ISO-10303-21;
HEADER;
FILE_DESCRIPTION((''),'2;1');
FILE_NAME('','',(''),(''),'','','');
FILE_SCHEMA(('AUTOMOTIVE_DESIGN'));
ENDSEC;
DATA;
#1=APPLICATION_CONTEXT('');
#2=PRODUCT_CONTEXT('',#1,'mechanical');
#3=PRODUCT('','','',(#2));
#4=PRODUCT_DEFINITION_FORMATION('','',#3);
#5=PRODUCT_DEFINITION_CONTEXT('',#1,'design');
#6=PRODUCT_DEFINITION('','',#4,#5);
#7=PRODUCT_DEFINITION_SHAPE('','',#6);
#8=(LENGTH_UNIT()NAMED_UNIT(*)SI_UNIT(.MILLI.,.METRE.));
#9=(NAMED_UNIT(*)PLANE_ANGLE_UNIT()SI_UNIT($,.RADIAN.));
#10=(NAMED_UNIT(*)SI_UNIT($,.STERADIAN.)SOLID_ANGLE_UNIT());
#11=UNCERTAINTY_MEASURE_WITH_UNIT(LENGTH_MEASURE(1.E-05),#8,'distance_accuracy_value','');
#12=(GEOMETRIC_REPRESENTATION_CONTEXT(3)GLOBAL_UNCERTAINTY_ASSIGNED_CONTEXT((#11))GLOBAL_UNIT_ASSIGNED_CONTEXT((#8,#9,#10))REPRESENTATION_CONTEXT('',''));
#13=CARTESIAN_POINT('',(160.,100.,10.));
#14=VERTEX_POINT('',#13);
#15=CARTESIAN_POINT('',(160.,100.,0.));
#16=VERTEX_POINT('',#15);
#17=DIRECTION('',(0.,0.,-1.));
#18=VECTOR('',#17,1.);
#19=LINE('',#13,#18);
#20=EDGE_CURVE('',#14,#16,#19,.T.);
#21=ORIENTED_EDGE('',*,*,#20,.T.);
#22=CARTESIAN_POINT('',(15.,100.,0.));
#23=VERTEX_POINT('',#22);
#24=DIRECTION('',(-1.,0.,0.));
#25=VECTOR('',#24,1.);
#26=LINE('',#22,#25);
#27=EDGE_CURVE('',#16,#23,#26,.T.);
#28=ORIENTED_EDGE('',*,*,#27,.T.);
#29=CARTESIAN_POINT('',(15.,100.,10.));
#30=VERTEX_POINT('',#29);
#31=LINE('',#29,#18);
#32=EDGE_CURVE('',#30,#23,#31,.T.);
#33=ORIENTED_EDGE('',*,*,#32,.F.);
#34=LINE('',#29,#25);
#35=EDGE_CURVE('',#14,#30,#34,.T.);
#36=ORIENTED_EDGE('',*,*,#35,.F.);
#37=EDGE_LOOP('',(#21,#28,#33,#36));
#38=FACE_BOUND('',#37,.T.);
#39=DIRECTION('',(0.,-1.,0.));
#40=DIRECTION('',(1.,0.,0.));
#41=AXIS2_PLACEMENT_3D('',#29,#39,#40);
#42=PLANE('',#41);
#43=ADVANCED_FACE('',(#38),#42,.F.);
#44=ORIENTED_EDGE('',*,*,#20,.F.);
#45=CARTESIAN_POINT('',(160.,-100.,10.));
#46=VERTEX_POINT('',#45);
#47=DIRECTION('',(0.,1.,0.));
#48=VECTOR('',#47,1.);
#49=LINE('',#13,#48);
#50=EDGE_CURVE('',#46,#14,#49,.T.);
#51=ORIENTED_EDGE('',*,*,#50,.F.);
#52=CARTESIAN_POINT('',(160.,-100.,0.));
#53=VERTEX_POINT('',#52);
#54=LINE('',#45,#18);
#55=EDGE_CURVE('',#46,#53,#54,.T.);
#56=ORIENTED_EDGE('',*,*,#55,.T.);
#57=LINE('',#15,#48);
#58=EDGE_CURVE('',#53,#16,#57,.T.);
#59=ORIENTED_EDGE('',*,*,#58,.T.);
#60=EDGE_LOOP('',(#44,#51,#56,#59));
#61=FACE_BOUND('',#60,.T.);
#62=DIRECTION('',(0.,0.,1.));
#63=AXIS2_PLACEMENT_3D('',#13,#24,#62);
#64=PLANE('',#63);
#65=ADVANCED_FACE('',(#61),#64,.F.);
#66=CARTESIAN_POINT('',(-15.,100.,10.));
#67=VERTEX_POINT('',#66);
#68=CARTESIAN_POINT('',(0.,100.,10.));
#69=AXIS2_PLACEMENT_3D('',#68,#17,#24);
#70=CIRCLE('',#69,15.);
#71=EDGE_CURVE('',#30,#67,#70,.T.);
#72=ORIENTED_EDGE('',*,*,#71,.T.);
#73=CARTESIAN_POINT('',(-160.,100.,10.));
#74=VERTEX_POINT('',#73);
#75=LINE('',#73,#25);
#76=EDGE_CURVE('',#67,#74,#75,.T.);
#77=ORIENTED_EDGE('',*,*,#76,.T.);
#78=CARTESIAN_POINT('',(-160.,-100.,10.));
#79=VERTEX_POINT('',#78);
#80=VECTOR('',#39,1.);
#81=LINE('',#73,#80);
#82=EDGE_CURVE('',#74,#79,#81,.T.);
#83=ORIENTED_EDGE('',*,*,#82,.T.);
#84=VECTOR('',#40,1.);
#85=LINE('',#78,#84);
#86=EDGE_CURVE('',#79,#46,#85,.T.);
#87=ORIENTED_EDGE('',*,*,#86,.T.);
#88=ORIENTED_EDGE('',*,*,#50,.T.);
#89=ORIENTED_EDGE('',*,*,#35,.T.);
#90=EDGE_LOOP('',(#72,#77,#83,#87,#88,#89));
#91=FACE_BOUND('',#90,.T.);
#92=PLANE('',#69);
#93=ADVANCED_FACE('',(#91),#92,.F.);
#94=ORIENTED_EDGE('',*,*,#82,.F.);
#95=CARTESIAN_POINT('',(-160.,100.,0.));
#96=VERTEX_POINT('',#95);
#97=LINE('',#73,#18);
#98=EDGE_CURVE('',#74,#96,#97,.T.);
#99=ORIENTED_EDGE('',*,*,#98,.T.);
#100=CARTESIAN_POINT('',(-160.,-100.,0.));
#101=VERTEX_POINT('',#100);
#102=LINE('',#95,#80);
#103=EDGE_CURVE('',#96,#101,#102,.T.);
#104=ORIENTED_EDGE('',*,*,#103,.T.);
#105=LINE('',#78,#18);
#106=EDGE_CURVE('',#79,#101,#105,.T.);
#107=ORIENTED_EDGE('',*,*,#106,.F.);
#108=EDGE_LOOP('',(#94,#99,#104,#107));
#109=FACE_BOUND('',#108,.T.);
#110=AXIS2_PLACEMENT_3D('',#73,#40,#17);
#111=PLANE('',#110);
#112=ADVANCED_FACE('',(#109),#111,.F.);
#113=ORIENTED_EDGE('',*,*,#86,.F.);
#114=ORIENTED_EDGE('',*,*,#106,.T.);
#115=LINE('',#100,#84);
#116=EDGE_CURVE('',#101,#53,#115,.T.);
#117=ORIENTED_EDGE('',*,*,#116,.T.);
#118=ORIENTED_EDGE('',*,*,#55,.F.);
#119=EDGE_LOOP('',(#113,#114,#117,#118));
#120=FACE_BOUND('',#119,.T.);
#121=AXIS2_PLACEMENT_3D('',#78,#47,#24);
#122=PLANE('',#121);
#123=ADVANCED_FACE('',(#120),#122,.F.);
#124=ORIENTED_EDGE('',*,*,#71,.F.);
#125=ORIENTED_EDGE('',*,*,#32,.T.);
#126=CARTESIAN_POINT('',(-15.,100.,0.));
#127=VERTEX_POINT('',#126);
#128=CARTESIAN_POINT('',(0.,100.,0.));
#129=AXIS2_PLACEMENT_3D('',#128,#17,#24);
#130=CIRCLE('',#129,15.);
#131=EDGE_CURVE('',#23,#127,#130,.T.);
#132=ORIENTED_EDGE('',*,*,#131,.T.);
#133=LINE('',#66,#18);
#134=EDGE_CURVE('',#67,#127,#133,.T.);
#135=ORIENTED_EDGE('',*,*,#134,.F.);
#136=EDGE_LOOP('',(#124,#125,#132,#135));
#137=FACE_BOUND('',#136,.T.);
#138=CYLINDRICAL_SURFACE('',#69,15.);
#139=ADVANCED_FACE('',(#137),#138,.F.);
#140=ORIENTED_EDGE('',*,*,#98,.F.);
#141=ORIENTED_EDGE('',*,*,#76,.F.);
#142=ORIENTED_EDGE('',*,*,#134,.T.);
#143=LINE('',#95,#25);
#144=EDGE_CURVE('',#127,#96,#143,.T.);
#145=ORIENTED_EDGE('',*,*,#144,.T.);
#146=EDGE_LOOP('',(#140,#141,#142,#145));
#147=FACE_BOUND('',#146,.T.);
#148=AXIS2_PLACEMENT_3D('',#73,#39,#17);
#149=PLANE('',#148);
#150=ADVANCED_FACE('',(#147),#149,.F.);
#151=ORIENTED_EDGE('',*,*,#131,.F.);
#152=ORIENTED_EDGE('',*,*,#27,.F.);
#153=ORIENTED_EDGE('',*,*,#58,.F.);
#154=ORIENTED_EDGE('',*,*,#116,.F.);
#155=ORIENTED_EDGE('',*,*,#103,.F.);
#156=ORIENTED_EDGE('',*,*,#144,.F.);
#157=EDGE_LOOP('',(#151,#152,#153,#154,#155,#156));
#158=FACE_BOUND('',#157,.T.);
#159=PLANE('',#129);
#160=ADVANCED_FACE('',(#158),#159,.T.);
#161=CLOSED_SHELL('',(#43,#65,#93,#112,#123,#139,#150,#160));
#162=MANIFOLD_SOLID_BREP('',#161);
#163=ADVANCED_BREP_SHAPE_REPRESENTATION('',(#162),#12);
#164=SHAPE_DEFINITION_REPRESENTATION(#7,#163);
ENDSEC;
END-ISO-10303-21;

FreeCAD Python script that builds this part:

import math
import FreeCAD as App
import Part
import Sketcher
Q = App.Units.Quantity

doc = App.newDocument("Part")
body = doc.addObject("PartDesign::Body", "Body")

sketch1 = body.newObject("Sketcher::SketchObject", "Sketch")
sketch1.AttachmentSupport = (doc.getObject("XY_Plane"), [""])
sketch1.MapMode = "FlatFace"
sketch1.addGeometry([
    Part.LineSegment(App.Vector(-15, 100, 0), App.Vector(-160, 100, 0)),
    Part.LineSegment(App.Vector(-160, 100, 0), App.Vector(-160, -100, 0)),
    Part.LineSegment(App.Vector(-160, -100, 0), App.Vector(160, -100, 0)),
    Part.LineSegment(App.Vector(160, -100, 0), App.Vector(160, 100, 0)),
    Part.LineSegment(App.Vector(160, 100, 0), App.Vector(15, 100, 0)),
    Part.ArcOfCircle(Part.Circle(App.Vector(0, 100, 0), App.Vector(0, 0, 1), 15), math.radians(180), math.radians(360)),
], False)
sketch1.addConstraint([
    Sketcher.Constraint("Coincident", 0, 2, 1, 1),
    Sketcher.Constraint("Coincident", 1, 2, 2, 1),
    Sketcher.Constraint("Coincident", 2, 2, 3, 1),
    Sketcher.Constraint("Coincident", 3, 2, 4, 1),
    Sketcher.Constraint("Coincident", 4, 2, 5, 2),
    Sketcher.Constraint("Coincident", 5, 1, 0, 1),
    Sketcher.Constraint("Horizontal", 0),
    Sketcher.Constraint("Vertical", 1),
    Sketcher.Constraint("Horizontal", 2),
    Sketcher.Constraint("Vertical", 3),
    Sketcher.Constraint("Horizontal", 4),
    Sketcher.Constraint("Symmetric", 0, 2, 2, 2, -1, 1),
    Sketcher.Constraint("Symmetric", 4, 2, 5, 1, -2),
    Sketcher.Constraint("Horizontal", 5, 3, 0, 2),
    Sketcher.Constraint("Radius", 5, Q("15 mm")),
    Sketcher.Constraint("DistanceX", 0, 2, 0, 1, Q("145 mm")),
    Sketcher.Constraint("DistanceY", 1, 2, 1, 1, Q("200 mm")),
])
pad1 = body.newObject("PartDesign::Pad", "Pad")
pad1.Profile = sketch1
pad1.Length = 10

doc.recompute()
